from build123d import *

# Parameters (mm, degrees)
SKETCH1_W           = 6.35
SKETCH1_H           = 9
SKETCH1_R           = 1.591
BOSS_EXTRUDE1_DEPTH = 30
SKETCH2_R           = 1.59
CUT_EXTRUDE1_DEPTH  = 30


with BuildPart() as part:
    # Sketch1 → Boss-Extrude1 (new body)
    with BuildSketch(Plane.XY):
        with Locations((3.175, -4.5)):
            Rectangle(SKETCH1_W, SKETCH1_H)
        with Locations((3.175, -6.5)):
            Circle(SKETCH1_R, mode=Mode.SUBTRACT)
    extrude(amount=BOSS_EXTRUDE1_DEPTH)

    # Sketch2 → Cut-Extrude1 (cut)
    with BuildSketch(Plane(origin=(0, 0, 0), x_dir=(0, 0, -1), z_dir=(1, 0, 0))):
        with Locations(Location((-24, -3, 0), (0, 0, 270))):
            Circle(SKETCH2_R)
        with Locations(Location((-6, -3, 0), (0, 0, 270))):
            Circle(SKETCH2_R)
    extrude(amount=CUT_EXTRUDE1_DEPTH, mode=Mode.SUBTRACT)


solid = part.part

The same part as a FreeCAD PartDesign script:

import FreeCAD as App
import Part
import Sketcher


def add_polygon(sketch, points):
    """Adds a closed chain of lines whose ends are joined by coincident constraints."""
    first, n = sketch.GeometryCount, len(points)
    for a, b in zip(points, points[1:] + points[:1]):
        sketch.addGeometry(Part.LineSegment(App.Vector(*a, 0), App.Vector(*b, 0)), False)
    for i in range(n):
        sketch.addConstraint(Sketcher.Constraint("Coincident", first + i, 2, first + (i + 1) % n, 1))

doc = App.newDocument("Part")
body = doc.addObject("PartDesign::Body", "Body")

# Sketch on XY plane
sketch1 = body.newObject("Sketcher::SketchObject", "Sketch")
sketch1.AttachmentSupport = (doc.getObject("XY_Plane"), [""])
sketch1.MapMode = "FlatFace"
add_polygon(sketch1, [(0, 0), (0, -9), (6.3, -9), (6.3, 0)])  # lines 0-3
sketch1.addGeometry(Part.Circle(App.Vector(3.2, -6.5, 0), App.Vector(0, 0, 1), 1.6), False)  # 4
sketch1.addConstraint([
    Sketcher.Constraint("Vertical", 0),
    Sketcher.Constraint("Horizontal", 1),
    Sketcher.Constraint("Vertical", 2),
    Sketcher.Constraint("Horizontal", 3),
    Sketcher.Constraint("Coincident", 3, 2, -1, 1),
    Sketcher.Constraint("DistanceY", 0, 2, 0, 1, 9.0),
    Sketcher.Constraint("Diameter", 4, 3.182),
    Sketcher.Constraint("DistanceX", 1, 1, 1, 2, 6.35),
    Sketcher.Constraint("DistanceY", 4, 3, -1, 1, 6.5),
    Sketcher.Constraint("DistanceX", -1, 1, 4, 3, 3.175),
])
pad1 = body.newObject("PartDesign::Pad", "Pad")
pad1.Profile = sketch1
pad1.Length = 30

# Sketch on YZ plane
sketch2 = body.newObject("Sketcher::SketchObject", "Sketch001")
sketch2.AttachmentSupport = (doc.getObject("YZ_Plane"), [""])
sketch2.MapMode = "FlatFace"
sketch2.addGeometry([
    Part.Circle(App.Vector(-3, 24, 0), App.Vector(0, 0, 1), 1.6),
    Part.Circle(App.Vector(-3, 6, 0), App.Vector(0, 0, 1), 1.6),
], False)
sketch2.addConstraint([
    Sketcher.Constraint("Equal", 0, 1),
    Sketcher.Constraint("Vertical", 0, 3, 1, 3),
    Sketcher.Constraint("Diameter", 0, 3.18),
    Sketcher.Constraint("DistanceX", 0, 3, -1, 1, 3.0),
    Sketcher.Constraint("DistanceY", -1, 1, 0, 3, 24.0),
    Sketcher.Constraint("DistanceY", -1, 1, 1, 3, 6.0),
])
pocket1 = body.newObject("PartDesign::Pocket", "Pocket")
pocket1.Profile = sketch2
pocket1.Length = 30
pocket1.Reversed = True

doc.recompute()
